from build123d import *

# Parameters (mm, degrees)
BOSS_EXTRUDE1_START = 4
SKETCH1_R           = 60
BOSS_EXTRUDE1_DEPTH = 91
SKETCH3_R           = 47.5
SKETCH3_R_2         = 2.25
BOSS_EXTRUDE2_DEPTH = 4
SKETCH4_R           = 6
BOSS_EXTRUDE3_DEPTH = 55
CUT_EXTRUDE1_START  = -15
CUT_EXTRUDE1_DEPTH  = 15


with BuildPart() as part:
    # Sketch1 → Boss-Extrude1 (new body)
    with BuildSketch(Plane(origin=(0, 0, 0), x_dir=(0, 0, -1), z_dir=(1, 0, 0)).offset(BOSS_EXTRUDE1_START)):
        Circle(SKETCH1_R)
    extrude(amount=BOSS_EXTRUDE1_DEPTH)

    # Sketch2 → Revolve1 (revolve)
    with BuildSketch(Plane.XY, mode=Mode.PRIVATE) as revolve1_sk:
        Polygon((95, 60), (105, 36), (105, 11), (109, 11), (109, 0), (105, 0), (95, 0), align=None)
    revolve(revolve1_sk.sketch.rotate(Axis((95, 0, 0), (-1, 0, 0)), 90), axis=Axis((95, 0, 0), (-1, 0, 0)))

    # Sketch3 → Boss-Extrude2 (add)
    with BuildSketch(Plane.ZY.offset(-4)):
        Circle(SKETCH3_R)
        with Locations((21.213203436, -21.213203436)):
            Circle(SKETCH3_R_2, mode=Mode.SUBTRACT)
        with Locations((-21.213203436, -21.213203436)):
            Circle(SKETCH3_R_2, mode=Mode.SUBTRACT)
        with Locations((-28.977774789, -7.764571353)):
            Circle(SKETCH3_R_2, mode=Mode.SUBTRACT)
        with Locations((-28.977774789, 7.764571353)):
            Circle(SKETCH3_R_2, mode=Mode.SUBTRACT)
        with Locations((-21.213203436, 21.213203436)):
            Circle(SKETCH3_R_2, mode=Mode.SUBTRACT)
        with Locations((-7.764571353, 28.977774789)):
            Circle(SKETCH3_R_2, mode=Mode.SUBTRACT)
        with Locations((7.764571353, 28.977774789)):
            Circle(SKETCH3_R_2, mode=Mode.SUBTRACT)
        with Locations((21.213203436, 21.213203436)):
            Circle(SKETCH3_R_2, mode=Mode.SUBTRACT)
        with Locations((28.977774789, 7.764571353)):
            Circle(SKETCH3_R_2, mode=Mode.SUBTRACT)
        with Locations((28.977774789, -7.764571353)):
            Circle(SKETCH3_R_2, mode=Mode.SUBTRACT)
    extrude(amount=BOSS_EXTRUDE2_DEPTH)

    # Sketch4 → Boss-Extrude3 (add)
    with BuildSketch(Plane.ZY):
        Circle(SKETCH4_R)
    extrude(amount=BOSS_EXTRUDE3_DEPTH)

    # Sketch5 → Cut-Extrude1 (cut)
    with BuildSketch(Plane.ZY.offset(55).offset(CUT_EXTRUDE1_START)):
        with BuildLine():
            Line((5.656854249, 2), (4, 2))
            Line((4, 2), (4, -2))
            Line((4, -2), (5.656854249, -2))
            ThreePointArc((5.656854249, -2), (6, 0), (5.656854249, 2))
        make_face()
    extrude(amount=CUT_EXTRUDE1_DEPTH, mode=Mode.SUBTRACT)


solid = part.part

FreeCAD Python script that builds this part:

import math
import FreeCAD as App
import Part
import Sketcher
from FreeCAD import Vector

doc = App.newDocument("Part")
body = doc.addObject("PartDesign::Body", "Body")

sketch1 = doc.addObject("Sketcher::SketchObject", "Sketch")
body.addObject(sketch1)
sketch1.AttachmentSupport = (doc.YZ_Plane, [""])
sketch1.MapMode = "FlatFace"
sketch1.AttachmentOffset = App.Placement(Vector(0, 0, 4), App.Rotation())
sketch1.addGeometry(Part.Circle(Vector(0, 0, 0), Vector(0, 0, 1), 60), False)
sketch1.addConstraint([
    Sketcher.Constraint("Coincident", 0, 3, -1, 1),
    Sketcher.Constraint("Diameter", 0, 120.0),
])
pad1 = doc.addObject("PartDesign::Pad", "Pad")
body.addObject(pad1)
pad1.Profile = sketch1
pad1.Length = 91

sketch2 = doc.addObject("Sketcher::SketchObject", "Sketch001")
body.addObject(sketch2)
sketch2.AttachmentSupport = (doc.XY_Plane, [""])
sketch2.MapMode = "FlatFace"
sketch2.addGeometry([
    Part.LineSegment(Vector(105, 36, 0), Vector(95, 60, 0)),
    Part.LineSegment(Vector(95, 60, 0), Vector(95, 0, 0)),
    Part.LineSegment(Vector(95, 0, 0), Vector(109, 0, 0)),
    Part.LineSegment(Vector(109, 0, 0), Vector(109, 11, 0)),
    Part.LineSegment(Vector(109, 11, 0), Vector(105, 11, 0)),
    Part.LineSegment(Vector(105, 11, 0), Vector(105, 36, 0)),
], False)
sketch2.addConstraint([
    Sketcher.Constraint("Coincident", 0, 2, 1, 1),
    Sketcher.Constraint("Coincident", 1, 2, 2, 1),
    Sketcher.Constraint("Coincident", 2, 2, 3, 1),
    Sketcher.Constraint("Coincident", 3, 2, 4, 1),
    Sketcher.Constraint("Coincident", 4, 2, 5, 1),
    Sketcher.Constraint("Coincident", 5, 2, 0, 1),
    Sketcher.Constraint("Vertical", 1),
    Sketcher.Constraint("Horizontal", 2),
    Sketcher.Constraint("Vertical", 3),
    Sketcher.Constraint("Horizontal", 4),
    Sketcher.Constraint("Vertical", 5),
    Sketcher.Constraint("PointOnObject", 1, 2, -1),
    Sketcher.Constraint("DistanceX", 2, 1, 2, 2, 14.0),
    Sketcher.Constraint("DistanceX", 4, 2, 4, 1, 4.0),
    Sketcher.Constraint("DistanceY", 1, 2, 1, 1, 60.0),
    Sketcher.Constraint("DistanceY", 3, 1, 3, 2, 11.0),
    Sketcher.Constraint("DistanceY", 5, 1, 5, 2, 25.0),
    Sketcher.Constraint("DistanceX", -1, 1, 0, 2, 95.0),
])
revolution = doc.addObject("PartDesign::Revolution", "Revolution")
body.addObject(revolution)
revolution.Profile = sketch2
revolution.ReferenceAxis = (sketch2, ["H_Axis"])
revolution.Angle = 360

sketch3 = doc.addObject("Sketcher::SketchObject", "Sketch002")
body.addObject(sketch3)
sketch3.AttachmentSupport = (doc.YZ_Plane, [""])
sketch3.MapMode = "FlatFace"
sketch3.AttachmentOffset = App.Placement(Vector(0, 0, 4), App.Rotation())
sketch3.addGeometry([
    Part.Circle(Vector(0, 0, 0), Vector(0, 0, 1), 47.5),
    Part.Circle(Vector(-21.2, -21.2, 0), Vector(0, 0, 1), 2.2),
    Part.Circle(Vector(-7.8, -29, 0), Vector(0, 0, 1), 2.2),
    Part.Circle(Vector(-21.2, 21.2, 0), Vector(0, 0, 1), 2.2),
    Part.Circle(Vector(-7.8, 29, 0), Vector(0, 0, 1), 2.2),
    Part.Circle(Vector(7.8, -29, 0), Vector(0, 0, 1), 2.2),
    Part.Circle(Vector(21.2, -21.2, 0), Vector(0, 0, 1), 2.2),
    Part.Circle(Vector(29, -7.8, 0), Vector(0, 0, 1), 2.2),
    Part.Circle(Vector(7.8, 29, 0), Vector(0, 0, 1), 2.2),
    Part.Circle(Vector(29, 7.8, 0), Vector(0, 0, 1), 2.2),
    Part.Circle(Vector(21.2, 21.2, 0), Vector(0, 0, 1), 2.2),
], False)
sketch3.addConstraint([
    Sketcher.Constraint("Coincident", 0, 3, -1, 1),
    Sketcher.Constraint("Equal", 1, 2),
    Sketcher.Constraint("Equal", 2, 3),
    Sketcher.Constraint("Equal", 3, 4),
    Sketcher.Constraint("Equal", 4, 5),
    Sketcher.Constraint("Equal", 5, 6),
    Sketcher.Constraint("Equal", 6, 7),
    Sketcher.Constraint("Equal", 7, 8),
    Sketcher.Constraint("Equal", 8, 9),
    Sketcher.Constraint("Equal", 9, 10),
    Sketcher.Constraint("Symmetric", 4, 3, 5, 3, -1, 1),
    Sketcher.Constraint("Symmetric", 3, 3, 6, 3, -1, 1),
    Sketcher.Constraint("Symmetric", 2, 3, 8, 3, -1, 1),
    Sketcher.Constraint("Symmetric", 1, 3, 10, 3, -1, 1),
    Sketcher.Constraint("Symmetric", 2, 3, 5, 3, -2),
    Sketcher.Constraint("Symmetric", 1, 3, 6, 3, -2),
    Sketcher.Constraint("Symmetric", 7, 3, 9, 3, -1),
    Sketcher.Constraint("Diameter", 0, 95.0),
    Sketcher.Constraint("Diameter", 1, 4.5),
    Sketcher.Constraint("DistanceX", 2, 3, -1, 1, 7.764571),
    Sketcher.Constraint("DistanceY", 7, 3, -1, 1, 7.764571),
    Sketcher.Constraint("DistanceY", 2, 3, 1, 3, 7.764571),
    Sketcher.Constraint("DistanceY", 2, 3, 3, 3, 50.190978),
    Sketcher.Constraint("DistanceX", 6, 3, 7, 3, 7.764571),
    Sketcher.Constraint("DistanceX", 1, 3, -1, 1, 21.213203),
])
pad2 = doc.addObject("PartDesign::Pad", "Pad001")
body.addObject(pad2)
pad2.Profile = sketch3
pad2.Length = 4
pad2.Reversed = True

sketch4 = doc.addObject("Sketcher::SketchObject", "Sketch003")
body.addObject(sketch4)
sketch4.AttachmentSupport = (doc.YZ_Plane, [""])
sketch4.MapMode = "FlatFace"
sketch4.addGeometry(Part.Circle(Vector(0, 0, 0), Vector(0, 0, 1), 6), False)
sketch4.addConstraint([
    Sketcher.Constraint("Coincident", 0, 3, -1, 1),
    Sketcher.Constraint("Diameter", 0, 12.0),
])
pad3 = doc.addObject("PartDesign::Pad", "Pad002")
body.addObject(pad3)
pad3.Profile = sketch4
pad3.Length = 55
pad3.Reversed = True

sketch5 = doc.addObject("Sketcher::SketchObject", "Sketch004")
body.addObject(sketch5)
sketch5.AttachmentSupport = (doc.YZ_Plane, [""])
sketch5.MapMode = "FlatFace"
sketch5.AttachmentOffset = App.Placement(Vector(0, 0, -40), App.Rotation())
sketch5.addGeometry([
    Part.LineSegment(Vector(2, 5.7, 0), Vector(2, 4, 0)),
    Part.LineSegment(Vector(2, 4, 0), Vector(-2, 4, 0)),
    Part.LineSegment(Vector(-2, 4, 0), Vector(-2, 5.7, 0)),
    Part.ArcOfCircle(Part.Circle(Vector(0, 0, 0), Vector(0, 0, 1), 6), math.radians(71), math.radians(109)),
], False)
sketch5.addConstraint([
    Sketcher.Constraint("Coincident", 0, 2, 1, 1),
    Sketcher.Constraint("Coincident", 1, 2, 2, 1),
    Sketcher.Constraint("Coincident", 2, 2, 3, 2),
    Sketcher.Constraint("Coincident", 3, 1, 0, 1),
    Sketcher.Constraint("Vertical", 0),
    Sketcher.Constraint("Horizontal", 1),
    Sketcher.Constraint("Vertical", 2),
    Sketcher.Constraint("Coincident", 3, 3, -1, 1),
    Sketcher.Constraint("Horizontal", 2, 2, 3, 1),
    Sketcher.Constraint("Radius", 3, 6.0),
    Sketcher.Constraint("DistanceX", 1, 2, 1, 1, 4.0),
    Sketcher.Constraint("DistanceY", -1, 1, 0, 2, 4.0),
])
pocket1 = doc.addObject("PartDesign::Pocket", "Pocket")
body.addObject(pocket1)
pocket1.Profile = sketch5
pocket1.Length = 15

doc.recompute()
